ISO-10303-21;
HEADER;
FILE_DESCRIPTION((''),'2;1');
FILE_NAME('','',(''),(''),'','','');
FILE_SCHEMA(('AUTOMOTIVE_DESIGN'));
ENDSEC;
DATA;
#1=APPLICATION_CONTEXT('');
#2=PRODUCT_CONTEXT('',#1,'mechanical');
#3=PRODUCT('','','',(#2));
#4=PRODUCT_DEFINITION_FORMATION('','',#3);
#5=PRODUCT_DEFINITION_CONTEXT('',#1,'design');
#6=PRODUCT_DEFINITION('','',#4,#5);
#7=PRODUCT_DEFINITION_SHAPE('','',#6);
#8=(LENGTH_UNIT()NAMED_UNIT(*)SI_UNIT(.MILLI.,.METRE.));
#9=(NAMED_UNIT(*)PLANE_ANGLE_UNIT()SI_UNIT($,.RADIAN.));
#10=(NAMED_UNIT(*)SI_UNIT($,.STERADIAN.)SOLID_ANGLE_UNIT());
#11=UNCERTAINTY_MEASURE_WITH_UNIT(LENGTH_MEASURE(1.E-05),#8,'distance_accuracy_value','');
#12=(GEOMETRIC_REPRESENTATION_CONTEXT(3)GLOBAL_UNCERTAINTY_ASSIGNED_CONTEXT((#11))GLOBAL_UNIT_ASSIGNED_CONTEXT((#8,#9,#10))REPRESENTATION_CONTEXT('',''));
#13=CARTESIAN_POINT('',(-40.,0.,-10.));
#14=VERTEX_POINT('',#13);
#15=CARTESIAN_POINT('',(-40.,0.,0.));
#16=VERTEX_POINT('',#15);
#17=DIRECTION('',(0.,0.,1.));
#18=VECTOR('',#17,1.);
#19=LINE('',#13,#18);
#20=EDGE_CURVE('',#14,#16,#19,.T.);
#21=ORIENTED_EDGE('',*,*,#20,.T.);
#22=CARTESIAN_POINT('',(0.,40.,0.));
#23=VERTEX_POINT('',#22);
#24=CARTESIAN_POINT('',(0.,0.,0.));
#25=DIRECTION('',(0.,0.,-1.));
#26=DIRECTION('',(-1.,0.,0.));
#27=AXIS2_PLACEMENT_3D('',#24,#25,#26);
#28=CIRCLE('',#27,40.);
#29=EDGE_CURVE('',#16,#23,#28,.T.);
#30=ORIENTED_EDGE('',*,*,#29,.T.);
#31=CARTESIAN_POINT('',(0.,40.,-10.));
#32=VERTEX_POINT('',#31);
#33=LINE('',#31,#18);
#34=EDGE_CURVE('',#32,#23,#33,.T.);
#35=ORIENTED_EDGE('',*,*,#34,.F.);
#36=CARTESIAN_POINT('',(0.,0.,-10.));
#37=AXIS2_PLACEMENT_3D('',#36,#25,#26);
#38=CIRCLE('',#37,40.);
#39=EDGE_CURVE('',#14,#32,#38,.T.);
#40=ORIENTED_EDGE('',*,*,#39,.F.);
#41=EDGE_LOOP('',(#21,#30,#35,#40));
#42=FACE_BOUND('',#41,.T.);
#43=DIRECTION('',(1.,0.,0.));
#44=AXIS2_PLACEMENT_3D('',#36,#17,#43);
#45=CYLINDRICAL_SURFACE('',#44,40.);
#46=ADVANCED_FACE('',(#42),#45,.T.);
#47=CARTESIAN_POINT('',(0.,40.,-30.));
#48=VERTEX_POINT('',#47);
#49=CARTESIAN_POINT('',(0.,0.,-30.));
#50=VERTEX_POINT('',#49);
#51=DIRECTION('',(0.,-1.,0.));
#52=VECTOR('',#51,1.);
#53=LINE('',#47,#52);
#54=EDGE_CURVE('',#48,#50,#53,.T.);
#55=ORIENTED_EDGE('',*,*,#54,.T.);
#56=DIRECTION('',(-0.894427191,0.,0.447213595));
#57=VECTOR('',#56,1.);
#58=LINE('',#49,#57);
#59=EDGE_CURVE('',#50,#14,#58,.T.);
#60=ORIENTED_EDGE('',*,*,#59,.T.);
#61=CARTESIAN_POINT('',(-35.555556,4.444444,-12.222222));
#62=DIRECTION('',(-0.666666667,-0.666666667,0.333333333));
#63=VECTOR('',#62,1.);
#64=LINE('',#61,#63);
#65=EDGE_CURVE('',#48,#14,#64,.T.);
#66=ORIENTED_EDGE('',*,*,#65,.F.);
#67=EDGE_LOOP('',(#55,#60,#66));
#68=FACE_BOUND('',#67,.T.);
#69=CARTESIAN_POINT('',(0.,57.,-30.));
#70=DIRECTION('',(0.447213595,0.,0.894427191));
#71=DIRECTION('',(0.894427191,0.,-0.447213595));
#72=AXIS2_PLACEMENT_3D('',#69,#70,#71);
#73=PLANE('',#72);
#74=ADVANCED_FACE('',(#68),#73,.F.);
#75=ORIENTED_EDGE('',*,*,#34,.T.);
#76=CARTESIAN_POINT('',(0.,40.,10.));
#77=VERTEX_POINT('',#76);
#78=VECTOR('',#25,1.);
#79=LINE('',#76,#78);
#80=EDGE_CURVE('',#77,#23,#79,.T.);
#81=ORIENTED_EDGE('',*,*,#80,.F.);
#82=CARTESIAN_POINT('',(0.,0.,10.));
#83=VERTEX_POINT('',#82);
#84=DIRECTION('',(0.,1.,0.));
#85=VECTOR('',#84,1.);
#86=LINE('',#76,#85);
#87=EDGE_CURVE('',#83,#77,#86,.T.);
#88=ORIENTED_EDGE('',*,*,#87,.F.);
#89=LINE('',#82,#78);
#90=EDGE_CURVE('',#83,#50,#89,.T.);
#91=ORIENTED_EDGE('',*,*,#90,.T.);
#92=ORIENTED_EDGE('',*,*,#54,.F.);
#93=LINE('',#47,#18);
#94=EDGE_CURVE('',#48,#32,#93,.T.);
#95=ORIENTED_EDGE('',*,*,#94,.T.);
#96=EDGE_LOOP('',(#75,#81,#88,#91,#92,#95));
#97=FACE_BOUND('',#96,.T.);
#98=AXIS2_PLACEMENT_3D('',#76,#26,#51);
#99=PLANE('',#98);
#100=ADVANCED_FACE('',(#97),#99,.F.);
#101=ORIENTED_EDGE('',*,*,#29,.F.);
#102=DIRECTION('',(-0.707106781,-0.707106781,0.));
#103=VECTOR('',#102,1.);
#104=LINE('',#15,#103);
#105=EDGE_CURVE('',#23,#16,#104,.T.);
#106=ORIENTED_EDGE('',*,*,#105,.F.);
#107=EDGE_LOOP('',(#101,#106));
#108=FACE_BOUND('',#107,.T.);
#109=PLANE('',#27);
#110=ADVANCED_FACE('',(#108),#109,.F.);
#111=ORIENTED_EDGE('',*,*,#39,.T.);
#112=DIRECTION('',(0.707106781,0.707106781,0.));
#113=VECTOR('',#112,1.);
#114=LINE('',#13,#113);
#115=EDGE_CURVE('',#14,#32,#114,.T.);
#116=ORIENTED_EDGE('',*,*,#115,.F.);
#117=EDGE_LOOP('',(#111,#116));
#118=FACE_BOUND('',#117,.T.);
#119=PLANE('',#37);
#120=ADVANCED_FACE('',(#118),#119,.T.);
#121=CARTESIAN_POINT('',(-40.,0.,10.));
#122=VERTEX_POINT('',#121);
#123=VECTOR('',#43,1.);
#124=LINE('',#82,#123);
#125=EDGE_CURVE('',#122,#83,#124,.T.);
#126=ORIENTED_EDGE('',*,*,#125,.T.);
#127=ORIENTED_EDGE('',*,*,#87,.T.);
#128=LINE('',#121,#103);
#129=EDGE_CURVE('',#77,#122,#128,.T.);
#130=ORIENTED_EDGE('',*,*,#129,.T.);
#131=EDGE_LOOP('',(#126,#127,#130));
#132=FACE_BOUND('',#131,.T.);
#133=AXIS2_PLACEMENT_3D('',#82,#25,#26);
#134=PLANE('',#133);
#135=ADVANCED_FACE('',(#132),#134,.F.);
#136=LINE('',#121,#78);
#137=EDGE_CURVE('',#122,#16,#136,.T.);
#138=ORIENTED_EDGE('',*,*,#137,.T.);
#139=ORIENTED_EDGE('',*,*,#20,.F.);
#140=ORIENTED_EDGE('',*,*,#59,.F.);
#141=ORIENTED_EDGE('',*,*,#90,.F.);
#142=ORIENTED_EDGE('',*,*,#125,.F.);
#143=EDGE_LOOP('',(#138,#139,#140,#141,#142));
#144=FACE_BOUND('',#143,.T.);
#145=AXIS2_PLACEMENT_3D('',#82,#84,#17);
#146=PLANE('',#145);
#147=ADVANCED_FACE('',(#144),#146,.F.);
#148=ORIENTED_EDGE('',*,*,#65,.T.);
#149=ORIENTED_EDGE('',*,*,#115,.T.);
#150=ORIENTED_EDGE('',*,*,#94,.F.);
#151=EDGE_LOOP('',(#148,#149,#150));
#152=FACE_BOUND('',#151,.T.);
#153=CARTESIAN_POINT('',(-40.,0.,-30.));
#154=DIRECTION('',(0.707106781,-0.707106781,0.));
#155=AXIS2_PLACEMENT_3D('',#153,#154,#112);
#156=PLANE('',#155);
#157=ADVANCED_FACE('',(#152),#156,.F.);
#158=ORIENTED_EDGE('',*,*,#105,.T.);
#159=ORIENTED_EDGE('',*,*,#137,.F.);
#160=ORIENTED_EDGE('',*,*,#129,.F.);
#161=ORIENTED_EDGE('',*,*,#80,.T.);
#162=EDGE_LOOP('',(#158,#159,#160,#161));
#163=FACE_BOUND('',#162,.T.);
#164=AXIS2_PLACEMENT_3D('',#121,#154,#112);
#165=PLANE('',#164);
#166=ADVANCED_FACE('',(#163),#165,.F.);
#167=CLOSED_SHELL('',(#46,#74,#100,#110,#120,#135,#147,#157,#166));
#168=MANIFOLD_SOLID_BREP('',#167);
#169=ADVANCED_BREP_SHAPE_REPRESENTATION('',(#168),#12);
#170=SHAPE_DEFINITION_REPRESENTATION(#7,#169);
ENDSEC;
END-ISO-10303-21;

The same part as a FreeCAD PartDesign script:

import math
import FreeCAD as App
import Part
import Sketcher
Q = App.Units.Quantity

doc = App.newDocument("Part")
body = doc.addObject("PartDesign::Body", "Body")

# Sketch on XY plane
sketch1 = body.newObject("Sketcher::SketchObject", "Sketch")
sketch1.AttachmentSupport = (doc.getObject("XY_Plane"), [""])
sketch1.MapMode = "FlatFace"
sketch1.addGeometry(Part.LineSegment(App.Vector(-40, 0, 0), App.Vector(0, 0, 0)), False)
sketch1.addGeometry(Part.LineSegment(App.Vector(0, 0, 0), App.Vector(0, 40, 0)), False)
sketch1.addGeometry(Part.LineSegment(App.Vector(0, 40, 0), App.Vector(-40, 0, 0)), False)
sketch1.addConstraint(Sketcher.Constraint("Coincident", 0, 2, 1, 1))
sketch1.addConstraint(Sketcher.Constraint("Coincident", 1, 2, 2, 1))
sketch1.addConstraint(Sketcher.Constraint("Coincident", 2, 2, 0, 1))
sketch1.addConstraint(Sketcher.Constraint("Horizontal", 0))
sketch1.addConstraint(Sketcher.Constraint("Vertical", 1))
sketch1.addConstraint(Sketcher.Constraint("Coincident", 0, 2, -1, 1))
sketch1.addConstraint(Sketcher.Constraint("Equal", 0, 1))
sketch1.addConstraint(Sketcher.Constraint("DistanceX", 0, 1, 0, 2, Q("40 mm")))
pad1 = body.newObject("PartDesign::Pad", "Pad")
pad1.Profile = sketch1
pad1.Length = 10

# Sketch on XY plane
sketch2 = body.newObject("Sketcher::SketchObject", "Sketch001")
sketch2.AttachmentSupport = (doc.getObject("XY_Plane"), [""])
sketch2.MapMode = "FlatFace"
sketch2.addGeometry(Part.LineSegment(App.Vector(0, 40, 0), App.Vector(0, 0, 0)), False)
sketch2.addGeometry(Part.LineSegment(App.Vector(0, 0, 0), App.Vector(-40, 0, 0)), False)
sketch2.addGeometry(Part.ArcOfCircle(Part.Circle(App.Vector(0, 0, 0), App.Vector(0, 0, 1), 40), math.radians(90), math.radians(180)), False)
sketch2.addConstraint(Sketcher.Constraint("Coincident", 0, 2, 1, 1))
sketch2.addConstraint(Sketcher.Constraint("Coincident", 1, 2, 2, 2))
sketch2.addConstraint(Sketcher.Constraint("Coincident", 2, 1, 0, 1))
sketch2.addConstraint(Sketcher.Constraint("Vertical", 0))
sketch2.addConstraint(Sketcher.Constraint("Horizontal", 1))
sketch2.addConstraint(Sketcher.Constraint("Coincident", 2, 3, -1, 1))
sketch2.addConstraint(Sketcher.Constraint("Coincident", 0, 2, -1, 1))
sketch2.addConstraint(Sketcher.Constraint("Radius", 2, Q("40 mm")))
pad2 = body.newObject("PartDesign::Pad", "Pad001")
pad2.Profile = sketch2
pad2.Length = 10
pad2.Reversed = True

# Sketch on XY plane
sketch3 = body.newObject("Sketcher::SketchObject", "Sketch002")
sketch3.AttachmentSupport = (doc.getObject("XY_Plane"), [""])
sketch3.MapMode = "FlatFace"
sketch3.AttachmentOffset = App.Placement(App.Vector(0, 0, -10), App.Rotation())
sketch3.addGeometry(Part.LineSegment(App.Vector(0, 40, 0), App.Vector(0, 0, 0)), False)
sketch3.addGeometry(Part.LineSegment(App.Vector(0, 0, 0), App.Vector(-40, 0, 0)), False)
sketch3.addGeometry(Part.LineSegment(App.Vector(-40, 0, 0), App.Vector(0, 40, 0)), False)
sketch3.addConstraint(Sketcher.Constraint("Coincident", 0, 2, 1, 1))
sketch3.addConstraint(Sketcher.Constraint("Coincident", 1, 2, 2, 1))
sketch3.addConstraint(Sketcher.Constraint("Coincident", 2, 2, 0, 1))
sketch3.addConstraint(Sketcher.Constraint("Vertical", 0))
sketch3.addConstraint(Sketcher.Constraint("Horizontal", 1))
sketch3.addConstraint(Sketcher.Constraint("Coincident", 0, 2, -1, 1))
sketch3.addConstraint(Sketcher.Constraint("Equal", 1, 0))
sketch3.addConstraint(Sketcher.Constraint("DistanceX", 1, 2, 1, 1, Q("40 mm")))
pad3 = body.newObject("PartDesign::Pad", "Pad002")
pad3.Profile = sketch3
pad3.Length = 20
pad3.Reversed = True

# Sketch on XZ plane
sketch4 = body.newObject("Sketcher::SketchObject", "Sketch003")
sketch4.AttachmentSupport = (doc.getObject("XZ_Plane"), [""])
sketch4.MapMode = "FlatFace"
sketch4.addGeometry(Part.LineSegment(App.Vector(0, -30, 0), App.Vector(-40, -10, 0)), False)
sketch4.addGeometry(Part.LineSegment(App.Vector(-40, -10, 0), App.Vector(-40, -30, 0)), False)
sketch4.addGeometry(Part.LineSegment(App.Vector(-40, -30, 0), App.Vector(0, -30, 0)), False)
sketch4.addConstraint(Sketcher.Constraint("Coincident", 0, 2, 1, 1))
sketch4.addConstraint(Sketcher.Constraint("Coincident", 1, 2, 2, 1))
sketch4.addConstraint(Sketcher.Constraint("Coincident", 2, 2, 0, 1))
sketch4.addConstraint(Sketcher.Constraint("Vertical", 1))
sketch4.addConstraint(Sketcher.Constraint("Horizontal", 2))
sketch4.addConstraint(Sketcher.Constraint("PointOnObject", 2, 2, -2))
sketch4.addConstraint(Sketcher.Constraint("DistanceX", 2, 1, 2, 2, Q("40 mm")))
sketch4.addConstraint(Sketcher.Constraint("DistanceY", 1, 2, 1, 1, Q("20 mm")))
sketch4.addConstraint(Sketcher.Constraint("DistanceY", 0, 2, -1, 1, Q("10 mm")))
pocket1 = body.newObject("PartDesign::Pocket", "Pocket")
pocket1.Profile = sketch4
pocket1.Length = 57

doc.recompute()
